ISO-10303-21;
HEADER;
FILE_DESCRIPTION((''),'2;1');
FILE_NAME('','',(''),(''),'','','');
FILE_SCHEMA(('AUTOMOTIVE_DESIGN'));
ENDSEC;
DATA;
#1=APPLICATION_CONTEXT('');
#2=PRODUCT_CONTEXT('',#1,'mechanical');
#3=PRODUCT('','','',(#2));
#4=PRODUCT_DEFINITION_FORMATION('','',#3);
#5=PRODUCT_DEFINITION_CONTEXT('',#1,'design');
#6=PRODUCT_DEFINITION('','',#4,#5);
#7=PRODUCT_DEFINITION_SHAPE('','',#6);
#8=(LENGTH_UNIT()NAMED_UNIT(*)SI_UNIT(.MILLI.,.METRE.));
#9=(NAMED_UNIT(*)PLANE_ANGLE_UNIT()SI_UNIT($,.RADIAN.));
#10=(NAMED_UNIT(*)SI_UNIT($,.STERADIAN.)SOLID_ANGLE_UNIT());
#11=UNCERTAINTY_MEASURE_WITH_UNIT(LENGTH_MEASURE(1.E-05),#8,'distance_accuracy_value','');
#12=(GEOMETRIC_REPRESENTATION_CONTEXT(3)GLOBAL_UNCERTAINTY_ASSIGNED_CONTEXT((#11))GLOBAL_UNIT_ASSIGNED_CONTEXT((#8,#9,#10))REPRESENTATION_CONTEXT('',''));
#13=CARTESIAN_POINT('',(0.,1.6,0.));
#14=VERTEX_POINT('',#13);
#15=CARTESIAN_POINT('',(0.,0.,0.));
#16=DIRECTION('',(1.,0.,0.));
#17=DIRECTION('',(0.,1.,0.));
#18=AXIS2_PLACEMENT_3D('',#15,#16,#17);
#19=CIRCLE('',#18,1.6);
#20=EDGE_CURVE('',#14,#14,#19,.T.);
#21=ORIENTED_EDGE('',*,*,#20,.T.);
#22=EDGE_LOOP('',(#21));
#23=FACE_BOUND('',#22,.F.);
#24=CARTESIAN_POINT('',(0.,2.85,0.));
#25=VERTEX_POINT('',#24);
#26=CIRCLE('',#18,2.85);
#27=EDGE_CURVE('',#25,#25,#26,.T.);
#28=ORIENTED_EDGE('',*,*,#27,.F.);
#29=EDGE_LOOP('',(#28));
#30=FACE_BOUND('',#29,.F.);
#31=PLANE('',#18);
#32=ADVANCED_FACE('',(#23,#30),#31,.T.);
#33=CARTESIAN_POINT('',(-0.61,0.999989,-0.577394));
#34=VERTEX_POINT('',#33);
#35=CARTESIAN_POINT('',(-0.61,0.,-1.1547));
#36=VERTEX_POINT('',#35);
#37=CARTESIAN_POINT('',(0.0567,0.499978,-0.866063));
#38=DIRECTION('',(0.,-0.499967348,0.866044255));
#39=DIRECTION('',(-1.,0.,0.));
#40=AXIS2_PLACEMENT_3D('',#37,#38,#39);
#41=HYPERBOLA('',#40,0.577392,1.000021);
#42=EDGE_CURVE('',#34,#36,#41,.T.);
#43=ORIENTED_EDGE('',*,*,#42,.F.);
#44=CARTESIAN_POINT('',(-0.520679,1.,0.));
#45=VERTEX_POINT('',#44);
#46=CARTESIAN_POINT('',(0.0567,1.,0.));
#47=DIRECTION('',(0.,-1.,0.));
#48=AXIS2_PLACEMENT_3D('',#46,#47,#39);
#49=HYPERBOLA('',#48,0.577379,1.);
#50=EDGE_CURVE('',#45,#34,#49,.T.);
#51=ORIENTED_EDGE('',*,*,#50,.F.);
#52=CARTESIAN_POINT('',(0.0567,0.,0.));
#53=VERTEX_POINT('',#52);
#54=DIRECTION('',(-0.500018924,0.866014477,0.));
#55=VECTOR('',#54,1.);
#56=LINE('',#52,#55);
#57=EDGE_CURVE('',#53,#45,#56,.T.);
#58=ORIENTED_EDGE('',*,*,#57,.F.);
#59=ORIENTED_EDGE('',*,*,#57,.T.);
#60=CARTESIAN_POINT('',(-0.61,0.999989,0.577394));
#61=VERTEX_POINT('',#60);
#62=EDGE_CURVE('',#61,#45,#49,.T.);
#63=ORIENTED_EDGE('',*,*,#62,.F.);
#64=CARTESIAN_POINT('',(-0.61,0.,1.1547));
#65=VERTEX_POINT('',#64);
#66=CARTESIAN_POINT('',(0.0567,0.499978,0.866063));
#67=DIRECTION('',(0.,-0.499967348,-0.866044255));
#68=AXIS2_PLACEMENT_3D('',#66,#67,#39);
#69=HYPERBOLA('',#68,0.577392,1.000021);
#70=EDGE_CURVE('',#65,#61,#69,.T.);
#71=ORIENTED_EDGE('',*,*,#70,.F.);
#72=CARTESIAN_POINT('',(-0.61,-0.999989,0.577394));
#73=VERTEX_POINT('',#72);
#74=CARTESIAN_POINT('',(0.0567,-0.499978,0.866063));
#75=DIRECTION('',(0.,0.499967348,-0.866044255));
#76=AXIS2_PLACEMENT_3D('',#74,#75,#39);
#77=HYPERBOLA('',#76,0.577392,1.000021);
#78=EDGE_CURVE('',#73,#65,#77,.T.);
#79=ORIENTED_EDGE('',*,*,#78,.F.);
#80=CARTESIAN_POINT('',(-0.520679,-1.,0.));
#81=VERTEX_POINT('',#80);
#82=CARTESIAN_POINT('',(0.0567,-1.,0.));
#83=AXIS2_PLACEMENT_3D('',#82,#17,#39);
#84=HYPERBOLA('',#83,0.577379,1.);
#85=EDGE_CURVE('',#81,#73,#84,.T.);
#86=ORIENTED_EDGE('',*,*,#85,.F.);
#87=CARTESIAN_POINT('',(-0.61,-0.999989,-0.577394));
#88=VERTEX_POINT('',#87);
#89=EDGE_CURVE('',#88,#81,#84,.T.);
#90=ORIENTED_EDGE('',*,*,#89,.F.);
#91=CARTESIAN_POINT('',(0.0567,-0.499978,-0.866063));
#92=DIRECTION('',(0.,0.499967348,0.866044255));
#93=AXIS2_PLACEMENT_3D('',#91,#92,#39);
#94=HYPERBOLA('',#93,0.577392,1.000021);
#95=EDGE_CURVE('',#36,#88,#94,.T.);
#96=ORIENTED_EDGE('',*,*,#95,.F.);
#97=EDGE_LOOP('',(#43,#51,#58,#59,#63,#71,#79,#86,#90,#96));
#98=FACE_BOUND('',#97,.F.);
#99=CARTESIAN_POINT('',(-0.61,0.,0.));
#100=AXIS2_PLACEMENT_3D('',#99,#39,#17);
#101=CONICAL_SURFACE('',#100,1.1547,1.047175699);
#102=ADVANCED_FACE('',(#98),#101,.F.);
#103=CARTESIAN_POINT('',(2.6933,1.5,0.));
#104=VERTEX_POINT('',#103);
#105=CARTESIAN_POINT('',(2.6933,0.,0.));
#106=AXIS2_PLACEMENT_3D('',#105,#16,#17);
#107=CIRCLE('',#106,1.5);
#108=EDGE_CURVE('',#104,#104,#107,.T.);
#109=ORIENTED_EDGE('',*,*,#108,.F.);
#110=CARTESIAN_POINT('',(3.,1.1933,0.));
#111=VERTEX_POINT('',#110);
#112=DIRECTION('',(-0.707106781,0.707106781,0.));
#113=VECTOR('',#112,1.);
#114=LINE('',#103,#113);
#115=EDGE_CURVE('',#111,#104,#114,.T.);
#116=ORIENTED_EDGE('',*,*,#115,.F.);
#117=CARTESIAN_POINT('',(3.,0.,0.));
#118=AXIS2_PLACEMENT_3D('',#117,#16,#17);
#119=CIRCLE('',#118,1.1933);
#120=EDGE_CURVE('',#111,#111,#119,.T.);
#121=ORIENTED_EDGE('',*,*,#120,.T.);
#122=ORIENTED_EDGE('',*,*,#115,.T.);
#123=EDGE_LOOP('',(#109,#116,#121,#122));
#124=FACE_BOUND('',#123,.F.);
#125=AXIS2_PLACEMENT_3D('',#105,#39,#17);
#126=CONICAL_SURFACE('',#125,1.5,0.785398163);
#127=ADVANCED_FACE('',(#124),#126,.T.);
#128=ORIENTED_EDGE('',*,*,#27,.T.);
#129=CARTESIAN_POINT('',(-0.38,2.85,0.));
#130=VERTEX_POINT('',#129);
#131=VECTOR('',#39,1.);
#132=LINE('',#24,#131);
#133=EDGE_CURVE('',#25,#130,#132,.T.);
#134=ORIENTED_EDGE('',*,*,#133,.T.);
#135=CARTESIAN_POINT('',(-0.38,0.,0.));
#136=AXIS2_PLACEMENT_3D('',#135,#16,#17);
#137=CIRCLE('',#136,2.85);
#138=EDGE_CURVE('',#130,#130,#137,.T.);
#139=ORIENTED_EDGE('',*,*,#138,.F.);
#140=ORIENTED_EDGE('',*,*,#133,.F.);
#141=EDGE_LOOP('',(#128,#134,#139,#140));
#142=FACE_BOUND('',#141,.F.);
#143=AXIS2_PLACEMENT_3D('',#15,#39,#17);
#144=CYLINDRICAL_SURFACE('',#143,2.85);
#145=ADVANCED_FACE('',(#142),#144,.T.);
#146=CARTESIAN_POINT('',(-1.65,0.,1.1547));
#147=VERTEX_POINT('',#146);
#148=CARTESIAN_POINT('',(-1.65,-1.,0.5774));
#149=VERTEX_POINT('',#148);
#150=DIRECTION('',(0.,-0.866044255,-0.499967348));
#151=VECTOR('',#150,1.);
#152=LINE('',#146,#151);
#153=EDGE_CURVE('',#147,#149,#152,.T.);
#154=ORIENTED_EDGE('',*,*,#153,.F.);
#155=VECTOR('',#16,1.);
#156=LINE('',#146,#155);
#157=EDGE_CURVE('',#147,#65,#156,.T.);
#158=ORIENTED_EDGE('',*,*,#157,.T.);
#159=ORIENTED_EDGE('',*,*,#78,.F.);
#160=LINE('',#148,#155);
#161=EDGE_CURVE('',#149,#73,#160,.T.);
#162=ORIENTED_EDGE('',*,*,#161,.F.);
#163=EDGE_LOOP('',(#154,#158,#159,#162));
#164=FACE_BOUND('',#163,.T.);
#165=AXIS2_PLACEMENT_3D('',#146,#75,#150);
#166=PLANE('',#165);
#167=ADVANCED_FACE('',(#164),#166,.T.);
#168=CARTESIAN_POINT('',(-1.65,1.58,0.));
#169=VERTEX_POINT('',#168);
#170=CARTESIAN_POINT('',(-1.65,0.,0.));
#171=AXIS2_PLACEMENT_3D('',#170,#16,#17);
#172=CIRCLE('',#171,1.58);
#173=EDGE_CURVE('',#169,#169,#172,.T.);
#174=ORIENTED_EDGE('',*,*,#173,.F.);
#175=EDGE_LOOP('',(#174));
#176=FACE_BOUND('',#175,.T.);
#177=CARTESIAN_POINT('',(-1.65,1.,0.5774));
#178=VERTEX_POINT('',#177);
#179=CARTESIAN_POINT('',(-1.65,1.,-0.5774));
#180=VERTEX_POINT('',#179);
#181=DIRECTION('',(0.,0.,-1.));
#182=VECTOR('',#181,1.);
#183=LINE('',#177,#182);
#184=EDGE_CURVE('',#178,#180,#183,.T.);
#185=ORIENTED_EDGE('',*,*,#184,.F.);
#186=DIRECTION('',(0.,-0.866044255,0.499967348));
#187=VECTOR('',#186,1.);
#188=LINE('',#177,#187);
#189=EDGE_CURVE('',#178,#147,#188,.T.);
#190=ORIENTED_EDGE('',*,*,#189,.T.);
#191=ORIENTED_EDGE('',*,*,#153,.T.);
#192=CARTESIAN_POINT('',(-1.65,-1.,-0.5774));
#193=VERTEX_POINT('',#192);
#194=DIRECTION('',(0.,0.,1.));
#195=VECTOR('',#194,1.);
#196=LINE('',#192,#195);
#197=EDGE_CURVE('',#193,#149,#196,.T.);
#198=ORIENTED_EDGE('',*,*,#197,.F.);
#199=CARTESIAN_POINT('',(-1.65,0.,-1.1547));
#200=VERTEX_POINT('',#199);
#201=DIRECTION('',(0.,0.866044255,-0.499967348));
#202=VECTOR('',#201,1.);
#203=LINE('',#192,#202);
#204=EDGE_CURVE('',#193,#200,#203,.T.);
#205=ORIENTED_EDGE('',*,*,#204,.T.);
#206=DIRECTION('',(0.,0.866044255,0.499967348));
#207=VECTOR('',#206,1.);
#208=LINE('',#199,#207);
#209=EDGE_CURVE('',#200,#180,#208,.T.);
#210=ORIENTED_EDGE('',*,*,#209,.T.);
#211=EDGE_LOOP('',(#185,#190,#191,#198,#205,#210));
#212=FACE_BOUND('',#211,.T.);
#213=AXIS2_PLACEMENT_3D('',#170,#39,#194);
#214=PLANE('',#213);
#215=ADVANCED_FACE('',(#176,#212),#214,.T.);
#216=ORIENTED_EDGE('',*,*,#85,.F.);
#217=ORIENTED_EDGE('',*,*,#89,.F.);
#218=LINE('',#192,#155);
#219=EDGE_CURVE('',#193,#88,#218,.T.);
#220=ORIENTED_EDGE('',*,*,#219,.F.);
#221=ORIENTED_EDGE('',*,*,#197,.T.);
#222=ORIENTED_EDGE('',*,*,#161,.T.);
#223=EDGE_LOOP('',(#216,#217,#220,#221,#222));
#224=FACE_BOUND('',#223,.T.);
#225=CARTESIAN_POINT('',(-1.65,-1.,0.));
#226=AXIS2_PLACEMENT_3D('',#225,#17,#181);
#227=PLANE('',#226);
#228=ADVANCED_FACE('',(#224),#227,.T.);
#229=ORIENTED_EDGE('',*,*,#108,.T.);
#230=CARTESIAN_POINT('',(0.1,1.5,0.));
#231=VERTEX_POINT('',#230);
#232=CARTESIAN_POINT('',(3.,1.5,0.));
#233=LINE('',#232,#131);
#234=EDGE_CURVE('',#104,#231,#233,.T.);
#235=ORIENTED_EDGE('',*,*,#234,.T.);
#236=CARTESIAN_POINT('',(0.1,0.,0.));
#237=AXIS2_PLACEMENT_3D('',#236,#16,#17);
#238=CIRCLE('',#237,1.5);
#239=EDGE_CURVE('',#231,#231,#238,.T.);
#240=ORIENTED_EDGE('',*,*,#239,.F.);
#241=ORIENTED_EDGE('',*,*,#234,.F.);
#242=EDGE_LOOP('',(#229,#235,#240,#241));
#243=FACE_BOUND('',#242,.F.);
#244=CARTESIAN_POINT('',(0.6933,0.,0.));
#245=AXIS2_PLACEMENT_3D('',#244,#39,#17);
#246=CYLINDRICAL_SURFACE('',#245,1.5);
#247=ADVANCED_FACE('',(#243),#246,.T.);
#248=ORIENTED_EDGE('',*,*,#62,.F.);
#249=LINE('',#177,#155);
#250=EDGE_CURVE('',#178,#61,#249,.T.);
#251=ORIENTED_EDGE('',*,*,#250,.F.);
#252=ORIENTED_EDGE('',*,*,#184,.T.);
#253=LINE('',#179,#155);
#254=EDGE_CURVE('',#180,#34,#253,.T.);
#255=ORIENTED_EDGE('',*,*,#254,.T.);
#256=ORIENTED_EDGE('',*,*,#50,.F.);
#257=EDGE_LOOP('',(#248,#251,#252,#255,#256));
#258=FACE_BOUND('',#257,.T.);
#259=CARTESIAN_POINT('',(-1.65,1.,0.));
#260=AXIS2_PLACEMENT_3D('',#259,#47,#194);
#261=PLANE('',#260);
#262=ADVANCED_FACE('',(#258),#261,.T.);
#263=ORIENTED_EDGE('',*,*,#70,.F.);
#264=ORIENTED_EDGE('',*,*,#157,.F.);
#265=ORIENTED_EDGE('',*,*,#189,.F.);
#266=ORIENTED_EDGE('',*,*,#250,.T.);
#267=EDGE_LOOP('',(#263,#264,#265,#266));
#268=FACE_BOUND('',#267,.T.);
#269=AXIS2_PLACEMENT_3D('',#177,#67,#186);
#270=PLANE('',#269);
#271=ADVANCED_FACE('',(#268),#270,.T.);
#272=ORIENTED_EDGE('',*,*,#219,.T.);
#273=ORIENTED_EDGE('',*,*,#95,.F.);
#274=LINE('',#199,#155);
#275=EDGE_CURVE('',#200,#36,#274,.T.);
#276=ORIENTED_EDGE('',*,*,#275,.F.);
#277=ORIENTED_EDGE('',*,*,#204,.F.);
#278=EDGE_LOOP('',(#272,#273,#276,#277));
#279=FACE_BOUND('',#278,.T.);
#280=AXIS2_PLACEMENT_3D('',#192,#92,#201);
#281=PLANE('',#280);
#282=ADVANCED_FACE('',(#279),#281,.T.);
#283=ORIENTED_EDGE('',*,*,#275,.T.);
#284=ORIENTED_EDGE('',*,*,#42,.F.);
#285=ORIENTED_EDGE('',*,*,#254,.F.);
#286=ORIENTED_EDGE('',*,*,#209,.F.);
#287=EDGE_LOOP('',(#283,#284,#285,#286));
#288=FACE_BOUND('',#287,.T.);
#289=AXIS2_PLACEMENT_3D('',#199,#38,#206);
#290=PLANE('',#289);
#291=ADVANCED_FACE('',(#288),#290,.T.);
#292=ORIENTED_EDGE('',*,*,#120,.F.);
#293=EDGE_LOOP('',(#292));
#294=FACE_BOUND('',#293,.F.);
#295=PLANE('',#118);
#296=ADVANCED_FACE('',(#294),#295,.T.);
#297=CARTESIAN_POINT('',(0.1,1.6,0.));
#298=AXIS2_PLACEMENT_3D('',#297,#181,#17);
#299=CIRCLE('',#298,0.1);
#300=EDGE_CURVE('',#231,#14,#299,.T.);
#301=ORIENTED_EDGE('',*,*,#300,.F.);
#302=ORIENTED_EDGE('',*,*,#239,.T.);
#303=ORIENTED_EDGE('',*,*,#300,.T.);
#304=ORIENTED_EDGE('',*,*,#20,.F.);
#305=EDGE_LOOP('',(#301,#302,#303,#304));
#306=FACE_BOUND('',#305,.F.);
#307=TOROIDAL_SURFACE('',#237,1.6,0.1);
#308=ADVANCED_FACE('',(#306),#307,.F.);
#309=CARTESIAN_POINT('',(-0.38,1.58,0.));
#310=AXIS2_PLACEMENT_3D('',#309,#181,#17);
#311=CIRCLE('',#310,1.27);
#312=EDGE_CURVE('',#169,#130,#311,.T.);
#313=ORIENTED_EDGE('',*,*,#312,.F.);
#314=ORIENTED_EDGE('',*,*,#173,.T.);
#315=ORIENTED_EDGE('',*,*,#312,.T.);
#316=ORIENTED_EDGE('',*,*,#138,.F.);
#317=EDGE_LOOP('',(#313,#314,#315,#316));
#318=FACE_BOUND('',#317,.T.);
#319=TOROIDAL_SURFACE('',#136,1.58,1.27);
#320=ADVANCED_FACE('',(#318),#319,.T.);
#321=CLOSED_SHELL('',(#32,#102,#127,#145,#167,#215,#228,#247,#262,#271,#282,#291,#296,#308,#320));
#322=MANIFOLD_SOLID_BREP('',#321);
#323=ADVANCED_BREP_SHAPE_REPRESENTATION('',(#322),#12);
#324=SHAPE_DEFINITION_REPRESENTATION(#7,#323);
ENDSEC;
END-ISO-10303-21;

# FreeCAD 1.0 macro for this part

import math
import FreeCAD as App
import Part
import Sketcher
from FreeCAD import Vector


def edges_at(feature, points):
    """Names of the edges that pass closest to the given points."""
    edges = feature.Shape.Edges
    near = lambda p: min(range(len(edges)), key=lambda i: edges[i].distToShape(Part.Vertex(*p))[0])
    return sorted({f"Edge{near(p) + 1}" for p in points})


def add_polygon(sketch, points):
    """Adds a closed chain of lines whose ends are joined by coincident constraints."""
    first, n = sketch.GeometryCount, len(points)
    for a, b in zip(points, points[1:] + points[:1]):
        sketch.addGeometry(Part.LineSegment(App.Vector(*a, 0), App.Vector(*b, 0)), False)
    for i in range(n):
        sketch.addConstraint(Sketcher.Constraint("Coincident", first + i, 2, first + (i + 1) % n, 1))

doc = App.newDocument("Part")
body = doc.addObject("PartDesign::Body", "Body")

# Sketch on XY plane
sketch1 = doc.addObject("Sketcher::SketchObject", "Sketch")
body.addObject(sketch1)
sketch1.AttachmentSupport = (doc.XY_Plane, [""])
sketch1.MapMode = "FlatFace"
add_polygon(sketch1, [(0.1, 0), (3, 0), (3, 1.5), (0, 1.5), (0, 2.9), (-1.6, 2.9), (-1.6, 1.2), (-0.6, 1.2)])  # lines 0-7
sketch1.addConstraint([
    Sketcher.Constraint("Horizontal", 0),
    Sketcher.Constraint("Vertical", 1),
    Sketcher.Constraint("Horizontal", 2),
    Sketcher.Constraint("Vertical", 3),
    Sketcher.Constraint("Horizontal", 4),
    Sketcher.Constraint("Vertical", 5),
    Sketcher.Constraint("Horizontal", 6),
    Sketcher.Constraint("PointOnObject", 0, 2, -1),
    Sketcher.Constraint("PointOnObject", 2, 2, -2),
    Sketcher.Constraint("DistanceX", 2, 2, 2, 1, 3.0),
    Sketcher.Constraint("DistanceX", 4, 2, 4, 1, 1.65),
    Sketcher.Constraint("DistanceX", 6, 1, 6, 2, 1.04),
    Sketcher.Constraint("DistanceY", 1, 1, 1, 2, 1.5),
    Sketcher.Constraint("DistanceY", 3, 1, 3, 2, 1.35),
    Sketcher.Constraint("DistanceX", 0, 1, 0, 2, 2.9433),
    Sketcher.Constraint("DistanceY", 5, 2, 5, 1, 1.6953),
])
revolution = doc.addObject("PartDesign::Revolution", "Revolution")
body.addObject(revolution)
revolution.Profile = sketch1
revolution.ReferenceAxis = (sketch1, ["H_Axis"])
revolution.Angle = 360

# Sketch on YZ plane
sketch2 = doc.addObject("Sketcher::SketchObject", "Sketch001")
body.addObject(sketch2)
sketch2.AttachmentSupport = (doc.YZ_Plane, [""])
sketch2.MapMode = "FlatFace"
sketch2.AttachmentOffset = App.Placement(Vector(0, 0, -1.65), App.Rotation())
sketch2.addGeometry([
    Part.LineSegment(Vector(1, 0.6, 0), Vector(0, 1.2, 0)),  # 0
    Part.ArcOfCircle(Part.Circle(Vector(0, 0, 0), Vector(0, 0, 1), 1.2), math.radians(30), math.radians(90)),  # 1
    Part.ArcOfCircle(Part.Circle(Vector(0, 0, 0), Vector(0, 0, 1), 1.2), math.radians(90), math.radians(150)),  # 2
    Part.LineSegment(Vector(0, 1.2, 0), Vector(-1, 0.6, 0)),  # 3
    Part.ArcOfCircle(Part.Circle(Vector(0, 0, 0), Vector(0, 0, 1), 1.2), math.radians(-30), math.radians(30)),  # 4
    Part.LineSegment(Vector(1, 0.6, 0), Vector(1, -0.6, 0)),  # 5
    Part.LineSegment(Vector(-1, 0.6, 0), Vector(-1, -0.6, 0)),  # 6
    Part.ArcOfCircle(Part.Circle(Vector(0, 0, 0), Vector(0, 0, 1), 1.2), math.radians(150), math.radians(210)),  # 7
    Part.LineSegment(Vector(-1, -0.6, 0), Vector(0, -1.2, 0)),  # 8
    Part.ArcOfCircle(Part.Circle(Vector(0, 0, 0), Vector(0, 0, 1), 1.2), math.radians(-150), math.radians(-90)),  # 9
    Part.ArcOfCircle(Part.Circle(Vector(0, 0, 0), Vector(0, 0, 1), 1.2), math.radians(-90), math.radians(-30)),  # 10
    Part.LineSegment(Vector(0, -1.2, 0), Vector(1, -0.6, 0)),  # 11
], False)
sketch2.addConstraint([
    Sketcher.Constraint("Coincident", 0, 1, 1, 1),
    Sketcher.Constraint("Coincident", 1, 2, 0, 2),
    Sketcher.Constraint("Coincident", 2, 1, 3, 1),
    Sketcher.Constraint("Coincident", 3, 2, 2, 2),
    Sketcher.Constraint("Coincident", 4, 1, 5, 2),
    Sketcher.Constraint("Coincident", 5, 1, 4, 2),
    Sketcher.Constraint("Coincident", 6, 1, 7, 1),
    Sketcher.Constraint("Coincident", 7, 2, 6, 2),
    Sketcher.Constraint("Coincident", 8, 1, 9, 1),
    Sketcher.Constraint("Coincident", 9, 2, 8, 2),
    Sketcher.Constraint("Coincident", 10, 1, 11, 1),
    Sketcher.Constraint("Coincident", 11, 2, 10, 2),
    Sketcher.Constraint("Vertical", 5),
    Sketcher.Constraint("Vertical", 6),
    Sketcher.Constraint("Coincident", 1, 3, -1, 1),
    Sketcher.Constraint("Coincident", 2, 3, -1, 1),
    Sketcher.Constraint("Coincident", 4, 3, -1, 1),
    Sketcher.Constraint("Coincident", 7, 3, -1, 1),
    Sketcher.Constraint("Coincident", 9, 3, -1, 1),
    Sketcher.Constraint("Coincident", 10, 3, -1, 1),
    Sketcher.Constraint("Coincident", 2, 1, 1, 2),
    Sketcher.Constraint("Coincident", 5, 1, 0, 1),
    Sketcher.Constraint("Coincident", 6, 1, 3, 2),
    Sketcher.Constraint("Coincident", 8, 1, 7, 2),
    Sketcher.Constraint("Coincident", 10, 1, 9, 2),
    Sketcher.Constraint("PointOnObject", 1, 2, -2),
    Sketcher.Constraint("PointOnObject", 9, 2, -2),
    Sketcher.Constraint("Parallel", 0, 8),
    Sketcher.Constraint("Parallel", 3, 11),
    Sketcher.Constraint("DistanceX", -1, 1, 0, 1, 1.0),
    Sketcher.Constraint("Radius", 1, 1.1547),
])
pad1 = doc.addObject("PartDesign::Pad", "Pad")
body.addObject(pad1)
pad1.Profile = sketch2
pad1.Type = "UpToFirst"
doc.recompute()

fillet = doc.addObject("PartDesign::Fillet", "Fillet")
body.addObject(fillet)
fillet.Base = (pad1, edges_at(pad1, [(-1.65, -2.85, 0)]))
fillet.Radius = 1.27
doc.recompute()

chamfer = doc.addObject("PartDesign::Chamfer", "Chamfer")
body.addObject(chamfer)
chamfer.Base = (fillet, edges_at(fillet, [(3, -1.5, 0)]))
chamfer.ChamferType = "Two distances"
chamfer.Size = 0.3067
chamfer.Size2 = 0.3067
doc.recompute()

fillet2 = doc.addObject("PartDesign::Fillet", "Fillet001")
body.addObject(fillet2)
fillet2.Base = (chamfer, edges_at(chamfer, [(0, -1.5, 0)]))
fillet2.Radius = 0.1

doc.recompute()
